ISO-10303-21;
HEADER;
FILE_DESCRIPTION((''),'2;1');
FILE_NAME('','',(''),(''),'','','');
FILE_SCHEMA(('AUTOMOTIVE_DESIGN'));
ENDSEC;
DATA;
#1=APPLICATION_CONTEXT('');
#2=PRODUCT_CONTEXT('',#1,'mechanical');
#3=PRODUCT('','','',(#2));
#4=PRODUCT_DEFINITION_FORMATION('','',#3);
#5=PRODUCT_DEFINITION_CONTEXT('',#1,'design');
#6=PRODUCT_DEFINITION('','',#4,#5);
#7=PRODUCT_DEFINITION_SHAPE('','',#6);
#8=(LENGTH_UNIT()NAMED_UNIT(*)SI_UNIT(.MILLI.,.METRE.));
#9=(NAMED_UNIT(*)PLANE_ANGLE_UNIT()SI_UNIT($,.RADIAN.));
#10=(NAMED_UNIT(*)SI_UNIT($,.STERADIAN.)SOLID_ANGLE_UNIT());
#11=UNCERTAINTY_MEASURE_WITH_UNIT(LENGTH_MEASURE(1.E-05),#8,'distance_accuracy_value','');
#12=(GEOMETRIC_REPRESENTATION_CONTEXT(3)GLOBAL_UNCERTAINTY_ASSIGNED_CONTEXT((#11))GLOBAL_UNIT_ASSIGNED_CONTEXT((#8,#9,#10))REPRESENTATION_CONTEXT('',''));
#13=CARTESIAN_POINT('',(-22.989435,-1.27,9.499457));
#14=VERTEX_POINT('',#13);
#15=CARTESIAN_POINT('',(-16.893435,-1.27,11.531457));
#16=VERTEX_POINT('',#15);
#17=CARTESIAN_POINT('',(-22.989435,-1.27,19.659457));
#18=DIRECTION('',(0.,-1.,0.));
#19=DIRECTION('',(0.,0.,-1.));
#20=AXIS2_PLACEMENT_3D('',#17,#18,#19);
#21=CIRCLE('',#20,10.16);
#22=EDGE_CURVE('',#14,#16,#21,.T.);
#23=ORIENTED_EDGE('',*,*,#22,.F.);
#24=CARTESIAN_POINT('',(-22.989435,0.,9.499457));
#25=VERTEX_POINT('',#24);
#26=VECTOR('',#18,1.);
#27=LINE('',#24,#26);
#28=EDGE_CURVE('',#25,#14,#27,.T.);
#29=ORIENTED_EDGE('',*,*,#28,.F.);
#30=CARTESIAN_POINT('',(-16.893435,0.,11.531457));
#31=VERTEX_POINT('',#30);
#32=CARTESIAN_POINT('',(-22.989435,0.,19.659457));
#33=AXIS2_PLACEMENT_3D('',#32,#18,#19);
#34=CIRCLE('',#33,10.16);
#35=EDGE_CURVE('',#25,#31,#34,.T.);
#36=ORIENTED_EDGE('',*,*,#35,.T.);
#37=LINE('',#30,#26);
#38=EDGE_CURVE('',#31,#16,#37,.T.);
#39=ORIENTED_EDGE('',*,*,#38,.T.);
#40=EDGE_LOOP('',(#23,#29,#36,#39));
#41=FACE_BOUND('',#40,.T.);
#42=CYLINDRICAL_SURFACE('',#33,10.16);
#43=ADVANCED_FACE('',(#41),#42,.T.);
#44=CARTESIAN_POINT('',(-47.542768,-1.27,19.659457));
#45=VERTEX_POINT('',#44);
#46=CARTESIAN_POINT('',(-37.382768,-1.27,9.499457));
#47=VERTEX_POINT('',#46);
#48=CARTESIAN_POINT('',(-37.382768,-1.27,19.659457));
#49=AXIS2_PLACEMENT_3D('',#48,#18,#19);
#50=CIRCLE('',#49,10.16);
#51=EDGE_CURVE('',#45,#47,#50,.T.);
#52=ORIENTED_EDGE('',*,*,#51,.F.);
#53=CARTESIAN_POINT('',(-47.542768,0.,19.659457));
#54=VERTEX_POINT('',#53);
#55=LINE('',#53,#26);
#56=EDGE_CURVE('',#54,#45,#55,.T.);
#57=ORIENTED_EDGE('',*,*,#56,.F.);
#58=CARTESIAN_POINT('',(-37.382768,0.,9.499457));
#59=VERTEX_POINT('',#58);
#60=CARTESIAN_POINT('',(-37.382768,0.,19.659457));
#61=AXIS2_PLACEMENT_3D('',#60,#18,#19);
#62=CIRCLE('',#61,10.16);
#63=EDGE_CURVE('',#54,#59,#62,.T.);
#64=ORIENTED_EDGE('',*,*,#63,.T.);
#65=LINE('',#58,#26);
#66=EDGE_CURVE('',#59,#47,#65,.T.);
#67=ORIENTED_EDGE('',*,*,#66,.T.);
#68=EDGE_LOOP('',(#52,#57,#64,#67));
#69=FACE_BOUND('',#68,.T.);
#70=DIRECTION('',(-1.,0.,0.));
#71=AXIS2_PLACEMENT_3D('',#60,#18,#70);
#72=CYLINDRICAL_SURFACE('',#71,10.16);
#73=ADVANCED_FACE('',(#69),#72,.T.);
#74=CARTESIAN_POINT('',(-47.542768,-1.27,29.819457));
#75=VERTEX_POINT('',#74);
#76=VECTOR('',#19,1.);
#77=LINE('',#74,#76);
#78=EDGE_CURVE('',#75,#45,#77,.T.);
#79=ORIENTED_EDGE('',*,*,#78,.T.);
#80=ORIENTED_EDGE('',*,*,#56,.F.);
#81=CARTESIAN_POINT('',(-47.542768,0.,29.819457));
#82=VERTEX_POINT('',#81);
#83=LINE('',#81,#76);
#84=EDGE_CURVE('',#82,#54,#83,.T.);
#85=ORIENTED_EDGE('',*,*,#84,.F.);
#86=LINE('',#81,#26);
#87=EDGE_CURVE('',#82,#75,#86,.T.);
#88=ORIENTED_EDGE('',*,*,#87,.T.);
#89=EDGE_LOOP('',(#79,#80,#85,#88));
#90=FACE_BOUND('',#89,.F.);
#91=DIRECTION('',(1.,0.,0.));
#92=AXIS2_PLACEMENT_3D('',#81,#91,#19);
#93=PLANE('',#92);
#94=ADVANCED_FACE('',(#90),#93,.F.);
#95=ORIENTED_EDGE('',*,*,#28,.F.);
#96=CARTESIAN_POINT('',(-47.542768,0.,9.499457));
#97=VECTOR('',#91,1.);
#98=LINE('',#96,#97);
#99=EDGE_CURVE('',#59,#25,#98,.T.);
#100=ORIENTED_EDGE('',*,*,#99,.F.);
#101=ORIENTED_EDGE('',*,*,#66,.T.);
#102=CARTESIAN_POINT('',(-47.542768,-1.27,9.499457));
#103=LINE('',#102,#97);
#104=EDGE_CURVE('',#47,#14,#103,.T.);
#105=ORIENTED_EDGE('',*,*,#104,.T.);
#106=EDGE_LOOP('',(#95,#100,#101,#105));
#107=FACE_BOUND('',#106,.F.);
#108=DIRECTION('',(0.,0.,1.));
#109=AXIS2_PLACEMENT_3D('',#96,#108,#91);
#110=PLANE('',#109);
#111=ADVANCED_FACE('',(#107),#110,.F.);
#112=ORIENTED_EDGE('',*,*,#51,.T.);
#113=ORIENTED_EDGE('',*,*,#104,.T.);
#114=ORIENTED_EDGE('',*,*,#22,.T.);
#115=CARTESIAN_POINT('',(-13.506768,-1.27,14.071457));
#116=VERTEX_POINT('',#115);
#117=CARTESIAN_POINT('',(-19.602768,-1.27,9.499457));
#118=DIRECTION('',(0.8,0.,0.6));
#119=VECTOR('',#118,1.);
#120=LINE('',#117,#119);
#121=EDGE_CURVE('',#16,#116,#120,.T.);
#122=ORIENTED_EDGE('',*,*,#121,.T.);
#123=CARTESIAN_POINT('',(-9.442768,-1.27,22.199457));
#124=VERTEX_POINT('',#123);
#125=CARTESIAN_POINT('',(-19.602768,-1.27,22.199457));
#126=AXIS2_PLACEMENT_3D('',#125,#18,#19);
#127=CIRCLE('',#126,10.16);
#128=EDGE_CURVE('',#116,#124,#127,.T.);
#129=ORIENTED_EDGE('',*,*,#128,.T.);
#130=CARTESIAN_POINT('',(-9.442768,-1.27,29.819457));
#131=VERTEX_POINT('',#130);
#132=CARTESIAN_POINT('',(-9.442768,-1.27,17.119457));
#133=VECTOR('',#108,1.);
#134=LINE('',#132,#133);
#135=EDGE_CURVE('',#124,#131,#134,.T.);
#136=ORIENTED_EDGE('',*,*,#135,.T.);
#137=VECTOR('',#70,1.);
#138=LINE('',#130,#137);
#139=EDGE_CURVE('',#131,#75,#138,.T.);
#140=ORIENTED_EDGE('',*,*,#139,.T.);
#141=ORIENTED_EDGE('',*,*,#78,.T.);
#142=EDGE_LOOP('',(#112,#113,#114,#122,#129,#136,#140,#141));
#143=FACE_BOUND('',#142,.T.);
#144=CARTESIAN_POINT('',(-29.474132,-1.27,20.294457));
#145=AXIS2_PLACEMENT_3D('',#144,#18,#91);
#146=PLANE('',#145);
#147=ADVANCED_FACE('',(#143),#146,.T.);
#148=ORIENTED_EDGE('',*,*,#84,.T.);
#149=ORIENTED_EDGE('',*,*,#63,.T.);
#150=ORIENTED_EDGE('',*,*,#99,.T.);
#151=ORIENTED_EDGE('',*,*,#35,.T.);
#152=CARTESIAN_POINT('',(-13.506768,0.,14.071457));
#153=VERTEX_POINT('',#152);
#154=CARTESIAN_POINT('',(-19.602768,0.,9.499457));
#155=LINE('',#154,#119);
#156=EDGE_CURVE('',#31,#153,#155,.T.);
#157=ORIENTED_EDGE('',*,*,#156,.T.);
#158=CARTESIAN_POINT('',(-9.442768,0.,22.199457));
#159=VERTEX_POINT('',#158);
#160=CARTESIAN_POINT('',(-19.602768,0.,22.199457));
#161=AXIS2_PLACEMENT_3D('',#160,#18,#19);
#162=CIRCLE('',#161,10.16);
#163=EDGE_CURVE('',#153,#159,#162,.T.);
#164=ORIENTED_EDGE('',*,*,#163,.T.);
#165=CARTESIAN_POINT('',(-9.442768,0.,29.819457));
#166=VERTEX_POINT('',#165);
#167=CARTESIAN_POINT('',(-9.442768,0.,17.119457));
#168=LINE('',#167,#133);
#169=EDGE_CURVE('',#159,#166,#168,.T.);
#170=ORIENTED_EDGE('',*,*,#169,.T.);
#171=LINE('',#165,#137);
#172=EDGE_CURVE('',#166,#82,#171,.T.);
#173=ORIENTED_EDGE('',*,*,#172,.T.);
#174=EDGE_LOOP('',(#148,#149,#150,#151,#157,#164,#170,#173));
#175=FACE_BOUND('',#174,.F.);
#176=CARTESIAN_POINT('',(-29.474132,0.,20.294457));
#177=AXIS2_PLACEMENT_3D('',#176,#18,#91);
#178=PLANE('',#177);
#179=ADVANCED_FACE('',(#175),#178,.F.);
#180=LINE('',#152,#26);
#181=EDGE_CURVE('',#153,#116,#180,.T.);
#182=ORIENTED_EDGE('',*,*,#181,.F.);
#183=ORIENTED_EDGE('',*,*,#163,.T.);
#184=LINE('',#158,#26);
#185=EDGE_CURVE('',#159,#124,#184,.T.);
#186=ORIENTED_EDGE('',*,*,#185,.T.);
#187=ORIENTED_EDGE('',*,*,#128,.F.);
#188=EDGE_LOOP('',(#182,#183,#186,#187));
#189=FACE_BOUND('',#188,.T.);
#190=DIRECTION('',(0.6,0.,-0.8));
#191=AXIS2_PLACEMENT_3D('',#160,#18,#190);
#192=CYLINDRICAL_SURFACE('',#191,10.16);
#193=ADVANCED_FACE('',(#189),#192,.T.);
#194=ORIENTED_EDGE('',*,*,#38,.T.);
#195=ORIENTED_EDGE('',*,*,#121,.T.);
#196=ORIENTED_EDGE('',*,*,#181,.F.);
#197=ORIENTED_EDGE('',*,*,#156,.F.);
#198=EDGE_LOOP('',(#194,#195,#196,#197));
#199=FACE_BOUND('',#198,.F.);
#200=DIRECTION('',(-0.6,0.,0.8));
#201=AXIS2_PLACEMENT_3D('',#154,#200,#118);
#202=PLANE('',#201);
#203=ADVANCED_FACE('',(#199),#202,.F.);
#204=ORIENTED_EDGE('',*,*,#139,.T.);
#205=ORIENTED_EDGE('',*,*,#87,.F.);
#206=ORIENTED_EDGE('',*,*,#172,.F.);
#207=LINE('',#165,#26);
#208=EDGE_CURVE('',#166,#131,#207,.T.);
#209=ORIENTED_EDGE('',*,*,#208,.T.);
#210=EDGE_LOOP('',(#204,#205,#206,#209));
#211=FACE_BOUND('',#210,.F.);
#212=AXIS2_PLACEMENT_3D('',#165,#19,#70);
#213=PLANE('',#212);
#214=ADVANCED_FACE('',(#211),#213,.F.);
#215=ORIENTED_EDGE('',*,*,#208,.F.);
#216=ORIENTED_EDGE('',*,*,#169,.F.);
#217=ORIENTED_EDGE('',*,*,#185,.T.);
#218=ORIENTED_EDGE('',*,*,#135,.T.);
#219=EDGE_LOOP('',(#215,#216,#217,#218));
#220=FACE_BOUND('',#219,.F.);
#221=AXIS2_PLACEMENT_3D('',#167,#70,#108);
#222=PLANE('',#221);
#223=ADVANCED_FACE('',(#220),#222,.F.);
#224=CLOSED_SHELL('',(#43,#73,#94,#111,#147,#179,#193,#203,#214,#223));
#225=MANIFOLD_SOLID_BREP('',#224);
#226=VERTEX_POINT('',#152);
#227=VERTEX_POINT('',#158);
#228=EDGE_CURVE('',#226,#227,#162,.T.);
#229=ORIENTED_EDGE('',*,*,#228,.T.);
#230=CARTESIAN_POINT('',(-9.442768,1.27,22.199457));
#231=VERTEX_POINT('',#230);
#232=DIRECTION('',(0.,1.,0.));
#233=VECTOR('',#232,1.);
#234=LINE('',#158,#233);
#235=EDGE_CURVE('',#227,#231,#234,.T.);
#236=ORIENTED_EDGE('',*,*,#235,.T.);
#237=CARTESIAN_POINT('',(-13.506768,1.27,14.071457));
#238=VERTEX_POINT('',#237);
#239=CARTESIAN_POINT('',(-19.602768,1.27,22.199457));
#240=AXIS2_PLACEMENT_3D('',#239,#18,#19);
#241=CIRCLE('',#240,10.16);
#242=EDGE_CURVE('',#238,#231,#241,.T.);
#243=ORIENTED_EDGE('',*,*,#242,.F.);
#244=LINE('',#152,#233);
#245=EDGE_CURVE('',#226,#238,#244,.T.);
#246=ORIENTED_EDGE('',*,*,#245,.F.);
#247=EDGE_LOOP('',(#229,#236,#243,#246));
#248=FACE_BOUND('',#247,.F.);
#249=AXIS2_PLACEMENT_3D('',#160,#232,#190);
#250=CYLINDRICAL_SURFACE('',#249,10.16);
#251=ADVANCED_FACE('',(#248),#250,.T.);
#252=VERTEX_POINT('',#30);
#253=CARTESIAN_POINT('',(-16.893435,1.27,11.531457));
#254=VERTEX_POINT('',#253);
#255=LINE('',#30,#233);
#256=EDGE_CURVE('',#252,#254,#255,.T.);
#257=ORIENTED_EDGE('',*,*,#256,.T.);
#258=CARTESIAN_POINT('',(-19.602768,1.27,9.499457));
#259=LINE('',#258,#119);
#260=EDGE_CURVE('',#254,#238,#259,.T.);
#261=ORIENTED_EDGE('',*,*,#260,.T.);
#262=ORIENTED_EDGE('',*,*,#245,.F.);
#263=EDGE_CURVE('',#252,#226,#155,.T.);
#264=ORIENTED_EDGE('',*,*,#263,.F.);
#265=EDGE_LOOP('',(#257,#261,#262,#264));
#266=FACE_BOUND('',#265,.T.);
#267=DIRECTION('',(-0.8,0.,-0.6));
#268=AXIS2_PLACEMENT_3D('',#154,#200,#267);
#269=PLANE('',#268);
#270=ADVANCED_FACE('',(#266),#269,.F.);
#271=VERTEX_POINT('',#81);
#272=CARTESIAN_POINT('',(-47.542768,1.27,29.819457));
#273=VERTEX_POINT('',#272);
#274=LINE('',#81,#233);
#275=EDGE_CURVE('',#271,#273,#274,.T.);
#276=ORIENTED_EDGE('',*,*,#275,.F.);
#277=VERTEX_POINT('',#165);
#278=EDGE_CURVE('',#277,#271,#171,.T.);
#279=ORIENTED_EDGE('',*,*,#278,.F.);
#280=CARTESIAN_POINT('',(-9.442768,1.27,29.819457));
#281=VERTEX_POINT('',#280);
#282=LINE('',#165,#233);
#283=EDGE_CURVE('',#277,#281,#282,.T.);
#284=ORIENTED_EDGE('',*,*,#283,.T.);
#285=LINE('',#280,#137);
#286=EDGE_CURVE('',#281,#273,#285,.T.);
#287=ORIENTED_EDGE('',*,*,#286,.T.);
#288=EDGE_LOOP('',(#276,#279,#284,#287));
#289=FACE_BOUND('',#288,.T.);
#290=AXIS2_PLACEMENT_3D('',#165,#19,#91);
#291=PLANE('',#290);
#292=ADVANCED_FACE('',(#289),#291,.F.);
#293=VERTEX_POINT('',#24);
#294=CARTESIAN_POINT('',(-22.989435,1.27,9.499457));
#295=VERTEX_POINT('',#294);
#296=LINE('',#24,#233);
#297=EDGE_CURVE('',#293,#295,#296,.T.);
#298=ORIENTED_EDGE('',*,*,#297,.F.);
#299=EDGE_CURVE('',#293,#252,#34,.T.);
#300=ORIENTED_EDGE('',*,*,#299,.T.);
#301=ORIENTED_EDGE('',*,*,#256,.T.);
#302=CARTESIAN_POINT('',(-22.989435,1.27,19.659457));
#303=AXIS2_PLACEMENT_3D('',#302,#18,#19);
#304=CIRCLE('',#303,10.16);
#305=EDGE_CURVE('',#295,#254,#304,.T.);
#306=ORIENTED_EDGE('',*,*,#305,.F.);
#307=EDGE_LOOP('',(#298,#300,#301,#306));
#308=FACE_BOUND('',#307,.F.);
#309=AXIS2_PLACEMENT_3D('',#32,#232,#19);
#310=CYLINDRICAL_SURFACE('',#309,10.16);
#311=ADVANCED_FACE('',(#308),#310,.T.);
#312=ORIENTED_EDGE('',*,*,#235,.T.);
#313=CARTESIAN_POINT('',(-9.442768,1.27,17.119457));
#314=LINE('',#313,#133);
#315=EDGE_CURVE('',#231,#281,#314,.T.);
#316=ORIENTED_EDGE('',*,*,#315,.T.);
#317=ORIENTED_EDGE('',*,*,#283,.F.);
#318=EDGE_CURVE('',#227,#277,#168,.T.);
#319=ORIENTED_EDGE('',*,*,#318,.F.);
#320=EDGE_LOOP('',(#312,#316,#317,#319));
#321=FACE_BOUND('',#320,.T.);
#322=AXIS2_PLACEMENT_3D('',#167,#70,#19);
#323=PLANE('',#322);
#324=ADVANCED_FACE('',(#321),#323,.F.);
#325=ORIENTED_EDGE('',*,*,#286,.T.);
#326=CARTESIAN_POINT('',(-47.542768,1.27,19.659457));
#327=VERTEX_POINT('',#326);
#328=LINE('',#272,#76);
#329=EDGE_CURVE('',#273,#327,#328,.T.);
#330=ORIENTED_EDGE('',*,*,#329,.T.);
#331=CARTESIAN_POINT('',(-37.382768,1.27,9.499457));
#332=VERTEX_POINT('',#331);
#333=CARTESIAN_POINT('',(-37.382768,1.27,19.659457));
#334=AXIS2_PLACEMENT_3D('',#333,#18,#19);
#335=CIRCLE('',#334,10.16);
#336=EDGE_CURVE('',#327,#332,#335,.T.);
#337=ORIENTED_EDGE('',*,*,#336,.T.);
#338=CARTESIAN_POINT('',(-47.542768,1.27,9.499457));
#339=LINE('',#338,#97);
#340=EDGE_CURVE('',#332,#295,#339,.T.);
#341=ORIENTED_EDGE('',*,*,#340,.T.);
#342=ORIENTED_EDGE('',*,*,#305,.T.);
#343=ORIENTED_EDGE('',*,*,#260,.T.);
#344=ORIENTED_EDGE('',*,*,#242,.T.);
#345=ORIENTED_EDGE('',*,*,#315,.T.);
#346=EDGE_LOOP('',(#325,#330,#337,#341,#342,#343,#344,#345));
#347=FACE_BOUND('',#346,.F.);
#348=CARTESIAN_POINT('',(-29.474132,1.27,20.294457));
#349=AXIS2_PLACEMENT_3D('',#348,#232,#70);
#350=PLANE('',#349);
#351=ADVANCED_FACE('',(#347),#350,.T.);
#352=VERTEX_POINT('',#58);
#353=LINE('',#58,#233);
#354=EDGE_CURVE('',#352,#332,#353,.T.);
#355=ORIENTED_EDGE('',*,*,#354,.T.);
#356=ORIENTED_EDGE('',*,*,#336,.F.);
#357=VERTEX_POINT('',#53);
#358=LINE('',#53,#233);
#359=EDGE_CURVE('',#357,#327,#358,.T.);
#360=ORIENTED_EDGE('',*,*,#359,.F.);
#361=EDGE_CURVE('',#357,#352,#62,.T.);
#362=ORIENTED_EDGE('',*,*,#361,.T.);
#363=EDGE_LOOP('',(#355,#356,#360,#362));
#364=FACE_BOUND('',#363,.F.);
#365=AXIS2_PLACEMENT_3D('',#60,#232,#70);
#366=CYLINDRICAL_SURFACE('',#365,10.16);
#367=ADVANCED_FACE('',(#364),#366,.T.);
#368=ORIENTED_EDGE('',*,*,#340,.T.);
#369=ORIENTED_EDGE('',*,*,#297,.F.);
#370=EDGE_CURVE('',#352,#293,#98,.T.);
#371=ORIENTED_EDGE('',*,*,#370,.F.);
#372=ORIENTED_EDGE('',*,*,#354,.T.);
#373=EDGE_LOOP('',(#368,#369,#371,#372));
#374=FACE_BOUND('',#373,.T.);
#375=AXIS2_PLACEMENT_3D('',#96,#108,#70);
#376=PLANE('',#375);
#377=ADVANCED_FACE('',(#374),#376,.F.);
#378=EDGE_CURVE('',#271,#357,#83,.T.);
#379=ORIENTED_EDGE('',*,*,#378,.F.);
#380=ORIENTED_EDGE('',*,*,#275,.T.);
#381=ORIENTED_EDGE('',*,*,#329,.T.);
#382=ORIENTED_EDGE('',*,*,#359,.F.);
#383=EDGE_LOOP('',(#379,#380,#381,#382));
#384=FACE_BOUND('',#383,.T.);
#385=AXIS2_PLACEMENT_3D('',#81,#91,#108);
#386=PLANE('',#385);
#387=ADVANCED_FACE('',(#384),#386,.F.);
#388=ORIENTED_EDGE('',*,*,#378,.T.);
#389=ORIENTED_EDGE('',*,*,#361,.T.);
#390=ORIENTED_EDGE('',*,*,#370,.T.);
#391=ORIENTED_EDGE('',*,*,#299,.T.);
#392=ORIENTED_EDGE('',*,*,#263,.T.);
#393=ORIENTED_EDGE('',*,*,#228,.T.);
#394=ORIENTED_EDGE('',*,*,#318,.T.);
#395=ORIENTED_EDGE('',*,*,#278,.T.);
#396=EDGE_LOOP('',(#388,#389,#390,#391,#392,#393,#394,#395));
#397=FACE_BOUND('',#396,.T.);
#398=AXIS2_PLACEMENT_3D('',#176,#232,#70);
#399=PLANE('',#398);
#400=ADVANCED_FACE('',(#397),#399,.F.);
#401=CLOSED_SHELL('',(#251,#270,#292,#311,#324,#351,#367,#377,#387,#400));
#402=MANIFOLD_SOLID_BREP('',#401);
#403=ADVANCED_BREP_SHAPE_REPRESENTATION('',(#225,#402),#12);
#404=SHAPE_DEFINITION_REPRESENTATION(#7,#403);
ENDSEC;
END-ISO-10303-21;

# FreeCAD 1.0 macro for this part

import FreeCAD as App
import Part
import Sketcher
Q = App.Units.Quantity


def edges_at(feature, points):
    """Names of the edges that pass closest to the given points."""
    edges = feature.Shape.Edges
    near = lambda p: min(range(len(edges)), key=lambda i: edges[i].distToShape(Part.Vertex(*p))[0])
    return sorted({f"Edge{near(p) + 1}" for p in points})


def add_polygon(sketch, points):
    """Adds a closed chain of lines whose ends are joined by coincident constraints."""
    first, n = sketch.GeometryCount, len(points)
    for a, b in zip(points, points[1:] + points[:1]):
        sketch.addGeometry(Part.LineSegment(App.Vector(*a, 0), App.Vector(*b, 0)), False)
    for i in range(n):
        sketch.addConstraint(Sketcher.Constraint("Coincident", first + i, 2, first + (i + 1) % n, 1))

doc = App.newDocument("Part")
body = doc.addObject("PartDesign::Body", "Body")

# Sketch on XZ plane
sketch1 = doc.addObject("Sketcher::SketchObject", "Sketch")
body.addObject(sketch1)
sketch1.AttachmentSupport = (doc.XZ_Plane, [""])
sketch1.MapMode = "FlatFace"
add_polygon(sketch1, [(-9.442768, 29.819457), (-47.542768, 29.819457), (-47.542768, 9.499457), (-19.602768, 9.499457), (-9.442768, 17.119457)])  # lines 0-4
sketch1.addConstraint([
    Sketcher.Constraint("Horizontal", 0),
    Sketcher.Constraint("Vertical", 1),
    Sketcher.Constraint("Horizontal", 2),
    Sketcher.Constraint("Vertical", 4),
    Sketcher.Constraint("DistanceX", 0, 2, 0, 1, Q("1.5 in")),
    Sketcher.Constraint("DistanceX", 2, 1, 2, 2, Q("1.1 in")),
    Sketcher.Constraint("DistanceY", 1, 2, 1, 1, Q("0.8 in")),
    Sketcher.Constraint("DistanceY", 4, 1, 4, 2, Q("0.5 in")),
    Sketcher.Constraint("DistanceX", 0, 2, -1, 1, 47.542768),
    Sketcher.Constraint("DistanceY", -1, 1, 0, 2, 29.819457),
])
pad1 = doc.addObject("PartDesign::Pad", "Pad")
body.addObject(pad1)
pad1.Profile = sketch1
pad1.Length = Q("0.05 in")
doc.recompute()

fillet = doc.addObject("PartDesign::Fillet", "Fillet")
body.addObject(fillet)
fillet.Base = (pad1, edges_at(pad1, [(-47.543, -0.635, 9.499), (-19.603, -0.635, 9.499), (-9.443, -0.635, 17.119)]))
fillet.Radius = Q("0.4 in")
body2 = doc.addObject("PartDesign::Body", "Body001")
doc.recompute()

mirroring = doc.addObject("Part::Mirroring", "Mirroring")
mirroring.Source = body
mirroring.Base = App.Vector(0, 0, 0)
mirroring.Normal = App.Vector(0, -1, 0)
body2.BaseFeature = mirroring
doc.recompute()
mirroring.Visibility = False

doc.recompute()
